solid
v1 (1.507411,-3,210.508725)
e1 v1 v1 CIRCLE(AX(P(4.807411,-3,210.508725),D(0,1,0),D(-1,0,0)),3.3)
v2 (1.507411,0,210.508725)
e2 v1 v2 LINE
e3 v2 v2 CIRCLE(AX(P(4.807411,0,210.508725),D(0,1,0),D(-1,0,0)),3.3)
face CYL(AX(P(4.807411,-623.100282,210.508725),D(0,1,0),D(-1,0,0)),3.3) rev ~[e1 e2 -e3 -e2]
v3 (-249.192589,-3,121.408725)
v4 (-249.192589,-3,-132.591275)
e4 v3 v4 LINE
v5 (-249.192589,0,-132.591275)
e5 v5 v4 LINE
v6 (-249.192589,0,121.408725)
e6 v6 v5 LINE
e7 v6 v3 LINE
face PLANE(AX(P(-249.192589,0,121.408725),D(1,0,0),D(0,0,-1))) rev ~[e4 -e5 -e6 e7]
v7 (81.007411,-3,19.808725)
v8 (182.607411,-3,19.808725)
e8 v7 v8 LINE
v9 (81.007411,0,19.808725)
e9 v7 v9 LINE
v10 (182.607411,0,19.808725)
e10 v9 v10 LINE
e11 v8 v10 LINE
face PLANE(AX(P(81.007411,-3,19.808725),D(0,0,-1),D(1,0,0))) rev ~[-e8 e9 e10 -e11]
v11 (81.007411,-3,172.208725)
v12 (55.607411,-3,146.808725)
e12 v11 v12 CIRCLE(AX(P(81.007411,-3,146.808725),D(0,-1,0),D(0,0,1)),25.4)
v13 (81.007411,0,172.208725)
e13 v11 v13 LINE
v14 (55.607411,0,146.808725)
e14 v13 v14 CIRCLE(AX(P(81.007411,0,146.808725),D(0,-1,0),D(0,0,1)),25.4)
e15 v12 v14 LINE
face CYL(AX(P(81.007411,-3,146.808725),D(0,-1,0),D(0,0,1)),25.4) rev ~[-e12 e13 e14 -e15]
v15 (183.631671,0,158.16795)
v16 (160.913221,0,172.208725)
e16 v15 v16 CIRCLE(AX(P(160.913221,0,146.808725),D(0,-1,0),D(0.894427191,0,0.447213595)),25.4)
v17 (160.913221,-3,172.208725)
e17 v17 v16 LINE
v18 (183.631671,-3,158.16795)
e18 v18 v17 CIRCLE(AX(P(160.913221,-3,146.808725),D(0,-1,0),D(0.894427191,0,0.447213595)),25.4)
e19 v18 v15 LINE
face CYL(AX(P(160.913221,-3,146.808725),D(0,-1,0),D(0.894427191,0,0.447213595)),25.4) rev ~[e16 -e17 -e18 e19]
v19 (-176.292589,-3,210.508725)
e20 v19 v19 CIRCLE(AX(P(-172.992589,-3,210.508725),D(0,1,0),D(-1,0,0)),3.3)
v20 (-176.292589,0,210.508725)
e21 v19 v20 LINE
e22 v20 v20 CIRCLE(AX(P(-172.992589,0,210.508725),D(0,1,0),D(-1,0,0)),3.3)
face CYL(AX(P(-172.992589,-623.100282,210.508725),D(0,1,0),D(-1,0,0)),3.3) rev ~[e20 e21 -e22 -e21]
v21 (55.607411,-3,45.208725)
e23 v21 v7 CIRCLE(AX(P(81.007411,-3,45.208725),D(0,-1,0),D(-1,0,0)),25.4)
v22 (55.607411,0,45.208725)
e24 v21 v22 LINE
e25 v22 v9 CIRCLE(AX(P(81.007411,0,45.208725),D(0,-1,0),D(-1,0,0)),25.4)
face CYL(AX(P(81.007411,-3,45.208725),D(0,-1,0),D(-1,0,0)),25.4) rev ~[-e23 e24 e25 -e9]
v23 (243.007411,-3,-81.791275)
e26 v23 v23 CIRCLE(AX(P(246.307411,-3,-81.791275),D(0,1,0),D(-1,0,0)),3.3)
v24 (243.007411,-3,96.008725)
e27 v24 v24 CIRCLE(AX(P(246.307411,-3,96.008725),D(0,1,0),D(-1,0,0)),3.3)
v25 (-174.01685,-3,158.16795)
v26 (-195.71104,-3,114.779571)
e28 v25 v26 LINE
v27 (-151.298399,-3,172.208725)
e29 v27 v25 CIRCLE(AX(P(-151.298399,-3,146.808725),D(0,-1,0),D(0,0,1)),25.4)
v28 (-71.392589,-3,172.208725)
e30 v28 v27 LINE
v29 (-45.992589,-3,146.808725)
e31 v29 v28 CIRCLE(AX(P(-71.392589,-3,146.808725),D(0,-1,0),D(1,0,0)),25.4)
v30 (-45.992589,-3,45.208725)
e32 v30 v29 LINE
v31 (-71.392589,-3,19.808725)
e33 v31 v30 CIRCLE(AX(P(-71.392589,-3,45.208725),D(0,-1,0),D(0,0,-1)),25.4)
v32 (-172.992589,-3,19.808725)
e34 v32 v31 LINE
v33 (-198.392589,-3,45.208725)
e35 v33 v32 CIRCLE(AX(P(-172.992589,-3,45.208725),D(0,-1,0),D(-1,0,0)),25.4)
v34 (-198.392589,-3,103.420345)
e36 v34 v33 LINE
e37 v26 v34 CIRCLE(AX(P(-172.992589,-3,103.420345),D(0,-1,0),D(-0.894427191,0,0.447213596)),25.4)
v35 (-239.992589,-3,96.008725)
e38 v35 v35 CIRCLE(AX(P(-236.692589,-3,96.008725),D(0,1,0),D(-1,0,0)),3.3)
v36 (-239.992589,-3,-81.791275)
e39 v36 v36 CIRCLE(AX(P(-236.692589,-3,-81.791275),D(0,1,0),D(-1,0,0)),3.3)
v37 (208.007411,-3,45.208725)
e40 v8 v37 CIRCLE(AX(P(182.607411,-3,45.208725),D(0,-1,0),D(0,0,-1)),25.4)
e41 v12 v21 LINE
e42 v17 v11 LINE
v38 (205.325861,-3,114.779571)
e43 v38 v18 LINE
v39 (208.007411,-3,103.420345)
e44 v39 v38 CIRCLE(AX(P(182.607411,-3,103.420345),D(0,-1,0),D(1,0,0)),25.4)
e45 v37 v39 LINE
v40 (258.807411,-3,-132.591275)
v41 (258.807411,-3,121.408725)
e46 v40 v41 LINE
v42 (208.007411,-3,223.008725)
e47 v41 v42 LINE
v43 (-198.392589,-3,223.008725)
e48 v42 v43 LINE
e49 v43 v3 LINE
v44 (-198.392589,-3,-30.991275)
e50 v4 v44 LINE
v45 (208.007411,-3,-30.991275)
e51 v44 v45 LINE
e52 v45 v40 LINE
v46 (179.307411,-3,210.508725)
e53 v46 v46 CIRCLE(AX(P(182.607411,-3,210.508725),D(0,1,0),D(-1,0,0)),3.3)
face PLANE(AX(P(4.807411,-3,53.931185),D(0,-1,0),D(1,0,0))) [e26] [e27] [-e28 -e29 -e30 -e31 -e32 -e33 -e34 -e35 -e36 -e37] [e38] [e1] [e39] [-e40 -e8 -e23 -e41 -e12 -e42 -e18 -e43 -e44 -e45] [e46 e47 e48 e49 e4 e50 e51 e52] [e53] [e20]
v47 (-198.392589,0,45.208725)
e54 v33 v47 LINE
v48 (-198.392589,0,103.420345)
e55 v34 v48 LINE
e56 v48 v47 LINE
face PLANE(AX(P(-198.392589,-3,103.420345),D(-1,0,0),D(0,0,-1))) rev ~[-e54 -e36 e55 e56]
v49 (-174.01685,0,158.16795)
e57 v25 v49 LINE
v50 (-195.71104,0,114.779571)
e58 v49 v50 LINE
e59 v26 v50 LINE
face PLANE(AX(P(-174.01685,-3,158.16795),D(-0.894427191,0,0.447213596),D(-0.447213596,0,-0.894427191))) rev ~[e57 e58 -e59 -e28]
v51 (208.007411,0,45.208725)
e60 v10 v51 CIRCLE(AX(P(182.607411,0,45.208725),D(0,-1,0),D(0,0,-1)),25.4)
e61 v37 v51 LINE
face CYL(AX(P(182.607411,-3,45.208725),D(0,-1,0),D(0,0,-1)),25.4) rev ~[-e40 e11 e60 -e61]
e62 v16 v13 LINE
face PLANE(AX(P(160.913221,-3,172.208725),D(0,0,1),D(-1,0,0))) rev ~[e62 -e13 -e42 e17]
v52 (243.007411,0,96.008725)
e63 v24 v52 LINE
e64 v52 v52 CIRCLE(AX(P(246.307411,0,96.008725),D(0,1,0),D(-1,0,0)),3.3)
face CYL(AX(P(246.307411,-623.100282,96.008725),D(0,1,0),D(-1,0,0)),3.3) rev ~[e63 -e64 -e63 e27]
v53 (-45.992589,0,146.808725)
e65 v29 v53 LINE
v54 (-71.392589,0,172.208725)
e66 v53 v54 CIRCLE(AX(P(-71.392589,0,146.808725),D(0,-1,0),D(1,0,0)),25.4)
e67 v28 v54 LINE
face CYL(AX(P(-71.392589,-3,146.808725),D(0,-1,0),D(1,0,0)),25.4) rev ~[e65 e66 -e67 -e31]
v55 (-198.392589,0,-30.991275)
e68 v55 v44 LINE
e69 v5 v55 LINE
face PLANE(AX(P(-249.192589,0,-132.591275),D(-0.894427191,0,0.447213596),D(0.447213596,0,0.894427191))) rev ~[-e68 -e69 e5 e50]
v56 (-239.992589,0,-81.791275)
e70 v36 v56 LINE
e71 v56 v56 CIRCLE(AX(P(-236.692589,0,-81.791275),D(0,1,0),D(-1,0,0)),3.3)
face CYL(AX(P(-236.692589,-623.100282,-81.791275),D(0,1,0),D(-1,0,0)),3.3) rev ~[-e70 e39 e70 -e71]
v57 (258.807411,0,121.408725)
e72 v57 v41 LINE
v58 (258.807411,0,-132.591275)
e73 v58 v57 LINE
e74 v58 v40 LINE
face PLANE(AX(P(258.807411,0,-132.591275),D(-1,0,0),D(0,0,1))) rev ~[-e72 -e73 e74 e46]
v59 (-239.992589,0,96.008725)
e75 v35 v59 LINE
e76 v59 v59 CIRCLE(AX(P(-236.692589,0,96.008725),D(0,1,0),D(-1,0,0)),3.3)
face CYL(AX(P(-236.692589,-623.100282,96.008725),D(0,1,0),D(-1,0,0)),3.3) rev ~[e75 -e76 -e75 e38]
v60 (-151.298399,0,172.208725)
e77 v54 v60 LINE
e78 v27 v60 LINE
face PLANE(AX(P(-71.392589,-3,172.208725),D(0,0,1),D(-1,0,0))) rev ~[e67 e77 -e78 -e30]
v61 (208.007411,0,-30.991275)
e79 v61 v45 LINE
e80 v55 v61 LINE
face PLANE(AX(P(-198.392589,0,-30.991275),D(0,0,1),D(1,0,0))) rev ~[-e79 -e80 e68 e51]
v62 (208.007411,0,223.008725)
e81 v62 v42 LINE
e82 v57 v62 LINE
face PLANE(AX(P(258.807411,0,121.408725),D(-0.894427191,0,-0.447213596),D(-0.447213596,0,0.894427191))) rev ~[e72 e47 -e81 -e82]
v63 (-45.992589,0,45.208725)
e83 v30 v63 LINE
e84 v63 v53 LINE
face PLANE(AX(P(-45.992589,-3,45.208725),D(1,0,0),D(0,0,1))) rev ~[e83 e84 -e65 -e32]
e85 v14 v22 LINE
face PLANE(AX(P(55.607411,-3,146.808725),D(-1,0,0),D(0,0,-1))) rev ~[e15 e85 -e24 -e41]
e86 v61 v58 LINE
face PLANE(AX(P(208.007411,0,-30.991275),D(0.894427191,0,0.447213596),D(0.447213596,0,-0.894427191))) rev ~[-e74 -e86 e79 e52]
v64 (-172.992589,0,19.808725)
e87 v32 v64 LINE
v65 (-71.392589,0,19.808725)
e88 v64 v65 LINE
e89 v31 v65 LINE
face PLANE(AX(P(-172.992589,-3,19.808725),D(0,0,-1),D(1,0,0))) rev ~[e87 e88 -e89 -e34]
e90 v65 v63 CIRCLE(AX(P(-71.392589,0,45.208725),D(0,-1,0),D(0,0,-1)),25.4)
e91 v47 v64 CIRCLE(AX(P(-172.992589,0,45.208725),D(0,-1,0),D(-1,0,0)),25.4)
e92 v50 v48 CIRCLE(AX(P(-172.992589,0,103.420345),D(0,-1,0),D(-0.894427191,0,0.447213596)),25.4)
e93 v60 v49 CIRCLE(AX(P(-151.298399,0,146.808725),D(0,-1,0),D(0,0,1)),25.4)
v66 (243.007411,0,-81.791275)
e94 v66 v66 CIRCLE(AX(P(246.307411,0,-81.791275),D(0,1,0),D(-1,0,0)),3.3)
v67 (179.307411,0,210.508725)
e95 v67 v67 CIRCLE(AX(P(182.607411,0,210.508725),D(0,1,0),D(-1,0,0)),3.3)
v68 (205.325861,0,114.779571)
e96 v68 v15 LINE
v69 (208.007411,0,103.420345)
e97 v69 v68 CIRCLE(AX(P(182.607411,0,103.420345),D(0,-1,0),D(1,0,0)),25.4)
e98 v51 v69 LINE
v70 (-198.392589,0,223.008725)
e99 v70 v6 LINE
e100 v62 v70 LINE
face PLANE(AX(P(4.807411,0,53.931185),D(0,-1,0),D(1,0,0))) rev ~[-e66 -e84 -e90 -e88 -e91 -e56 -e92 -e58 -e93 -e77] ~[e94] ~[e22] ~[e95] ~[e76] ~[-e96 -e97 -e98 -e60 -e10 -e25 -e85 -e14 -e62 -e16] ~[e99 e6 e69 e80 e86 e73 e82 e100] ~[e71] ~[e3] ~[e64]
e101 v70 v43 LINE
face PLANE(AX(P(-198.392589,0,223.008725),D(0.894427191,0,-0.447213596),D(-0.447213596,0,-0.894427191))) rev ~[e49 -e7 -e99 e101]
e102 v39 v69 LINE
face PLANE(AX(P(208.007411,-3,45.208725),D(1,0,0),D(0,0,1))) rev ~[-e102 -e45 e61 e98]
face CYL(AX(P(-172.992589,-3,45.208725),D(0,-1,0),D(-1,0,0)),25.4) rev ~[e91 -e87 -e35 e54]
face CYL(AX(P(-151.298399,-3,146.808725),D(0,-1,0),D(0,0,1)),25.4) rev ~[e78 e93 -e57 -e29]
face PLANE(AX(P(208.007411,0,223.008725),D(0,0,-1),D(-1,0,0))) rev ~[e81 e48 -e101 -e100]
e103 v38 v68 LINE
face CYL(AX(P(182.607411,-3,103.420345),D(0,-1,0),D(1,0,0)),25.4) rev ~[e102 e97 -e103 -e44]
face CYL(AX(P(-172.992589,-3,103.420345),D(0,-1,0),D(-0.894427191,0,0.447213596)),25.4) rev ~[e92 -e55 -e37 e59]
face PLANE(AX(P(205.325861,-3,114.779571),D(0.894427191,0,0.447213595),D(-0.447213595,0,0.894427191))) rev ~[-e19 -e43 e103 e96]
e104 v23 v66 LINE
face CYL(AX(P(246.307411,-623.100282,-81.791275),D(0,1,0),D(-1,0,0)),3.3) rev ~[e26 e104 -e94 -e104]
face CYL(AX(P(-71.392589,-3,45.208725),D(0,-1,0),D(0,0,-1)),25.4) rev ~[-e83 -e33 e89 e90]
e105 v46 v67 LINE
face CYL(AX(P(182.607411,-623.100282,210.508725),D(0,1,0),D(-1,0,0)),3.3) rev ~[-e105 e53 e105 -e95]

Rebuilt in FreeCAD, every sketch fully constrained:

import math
import FreeCAD as App
import Part
import Sketcher

V = App.Vector
Q = App.Units.Quantity


def add_polygon(sketch, points):
    """Adds a closed chain of lines whose ends are joined by coincident constraints."""
    first, n = sketch.GeometryCount, len(points)
    for a, b in zip(points, points[1:] + points[:1]):
        sketch.addGeometry(Part.LineSegment(App.Vector(*a, 0), App.Vector(*b, 0)), False)
    for i in range(n):
        sketch.addConstraint(Sketcher.Constraint("Coincident", first + i, 2, first + (i + 1) % n, 1))

doc = App.newDocument("Part")
params = doc.addObject("Spreadsheet::Sheet", "Params")
for row, (alias, value) in enumerate([
    ("sketch1_width", "16 in"),
    ("sketch1_height", "10 in"),
    ("pad1_length", "3 mm"),
    ("sketch2_radius", "1 in"),
    ("sketch2_width", "4 in"),
    ("hole_diameter", "6.6 mm"),
], start=1):
    params.set(f"A{row}", alias)
    params.set(f"B{row}", "=" + value)
    params.setAlias(f"B{row}", alias)

body = doc.addObject("PartDesign::Body", "Body")

# Sketch on XZ plane
sketch1 = doc.addObject("Sketcher::SketchObject", "Sketch")
body.addObject(sketch1)
sketch1.AttachmentSupport = (doc.XZ_Plane, [""])
sketch1.MapMode = "FlatFace"
add_polygon(sketch1, [(-249, 121), (-249, -133), (-198, -31), (208, -31), (259, -133), (259, 121), (208, 223), (-198, 223)])  # lines 0-7
sketch1.addConstraint([
    Sketcher.Constraint("Vertical", 0),
    Sketcher.Constraint("Horizontal", 2),
    Sketcher.Constraint("Vertical", 4),
    Sketcher.Constraint("Horizontal", 6),
    Sketcher.Constraint("Parallel", 3, 5),
    Sketcher.Constraint("Parallel", 1, 7),
    Sketcher.Constraint("Horizontal", 0, 2, 3, 2),
    Sketcher.Constraint("Horizontal", 4, 2, 7, 2),
    Sketcher.Constraint("Vertical", 2, 2, 5, 2),
    Sketcher.Constraint("Equal", 1, 3),
    Sketcher.Constraint("DistanceX", 2, 1, 2, 2, Q("16 in")),
    Sketcher.Constraint("DistanceY", 0, 2, 0, 1, Q("10 in")),
    Sketcher.Constraint("DistanceX", 0, 2, 1, 2, Q("2 in")),
    Sketcher.Constraint("DistanceY", 0, 2, 1, 2, Q("4 in")),
    Sketcher.Constraint("DistanceX", 0, 2, -1, 1, Q("249.192589 mm")),
    Sketcher.Constraint("DistanceY", 0, 2, -1, 1, Q("132.591275 mm")),
])
sketch1.setExpression("Constraints[18]", "Params.sketch1_width")
sketch1.setExpression("Constraints[19]", "Params.sketch1_height")
pad1 = doc.addObject("PartDesign::Pad", "Pad")
body.addObject(pad1)
pad1.Profile = sketch1
pad1.setExpression("Length", "Params.pad1_length")

# Sketch on XZ plane
sketch2 = doc.addObject("Sketcher::SketchObject", "Sketch001")
body.addObject(sketch2)
sketch2.AttachmentSupport = (doc.XZ_Plane, [""])
sketch2.MapMode = "FlatFace"
sketch2.AttachmentOffset = App.Placement(V(0, 0, 3), App.Rotation())
sketch2.addGeometry([
    Part.ArcOfCircle(Part.Circle(V(-173, 45, 0), V(0, 0, 1), 25), math.radians(180), math.radians(270)),  # 0
    Part.LineSegment(V(-173, 20, 0), V(-71, 20, 0)),  # 1
    Part.ArcOfCircle(Part.Circle(V(-71, 45, 0), V(0, 0, 1), 25), math.radians(-90), math.radians(0)),  # 2
    Part.LineSegment(V(-46, 45, 0), V(-46, 147, 0)),  # 3
    Part.ArcOfCircle(Part.Circle(V(-71, 147, 0), V(0, 0, 1), 25), math.radians(0), math.radians(90)),  # 4
    Part.LineSegment(V(-71, 172, 0), V(-151, 172, 0)),  # 5
    Part.ArcOfCircle(Part.Circle(V(-151, 147, 0), V(0, 0, 1), 25), math.radians(90), math.radians(153)),  # 6
    Part.LineSegment(V(-174, 158, 0), V(-196, 115, 0)),  # 7
    Part.ArcOfCircle(Part.Circle(V(-173, 103, 0), V(0, 0, 1), 25), math.radians(153), math.radians(180)),  # 8
    Part.LineSegment(V(-198, 103, 0), V(-198, 45, 0)),  # 9
    Part.ArcOfCircle(Part.Circle(V(183, 103, 0), V(0, 0, 1), 25), math.radians(0), math.radians(27)),  # 10
    Part.LineSegment(V(205, 115, 0), V(184, 158, 0)),  # 11
    Part.ArcOfCircle(Part.Circle(V(161, 147, 0), V(0, 0, 1), 25), math.radians(27), math.radians(90)),  # 12
    Part.LineSegment(V(161, 172, 0), V(81, 172, 0)),  # 13
    Part.ArcOfCircle(Part.Circle(V(81, 147, 0), V(0, 0, 1), 25), math.radians(90), math.radians(180)),  # 14
    Part.LineSegment(V(56, 147, 0), V(56, 45, 0)),  # 15
    Part.ArcOfCircle(Part.Circle(V(81, 45, 0), V(0, 0, 1), 25), math.radians(180), math.radians(270)),  # 16
    Part.LineSegment(V(81, 20, 0), V(183, 20, 0)),  # 17
    Part.ArcOfCircle(Part.Circle(V(183, 45, 0), V(0, 0, 1), 25), math.radians(-90), math.radians(0)),  # 18
    Part.LineSegment(V(208, 45, 0), V(208, 103, 0)),  # 19
], False)
sketch2.addConstraint([
    Sketcher.Constraint("Tangent", 0, 2, 1, 1),
    Sketcher.Constraint("Tangent", 1, 2, 2, 1),
    Sketcher.Constraint("Tangent", 2, 2, 3, 1),
    Sketcher.Constraint("Tangent", 3, 2, 4, 1),
    Sketcher.Constraint("Tangent", 4, 2, 5, 1),
    Sketcher.Constraint("Tangent", 5, 2, 6, 1),
    Sketcher.Constraint("Tangent", 6, 2, 7, 1),
    Sketcher.Constraint("Tangent", 7, 2, 8, 1),
    Sketcher.Constraint("Tangent", 8, 2, 9, 1),
    Sketcher.Constraint("Tangent", 9, 2, 0, 1),
    Sketcher.Constraint("Tangent", 10, 2, 11, 1),
    Sketcher.Constraint("Tangent", 11, 2, 12, 1),
    Sketcher.Constraint("Tangent", 12, 2, 13, 1),
    Sketcher.Constraint("Tangent", 13, 2, 14, 1),
    Sketcher.Constraint("Tangent", 14, 2, 15, 1),
    Sketcher.Constraint("Tangent", 15, 2, 16, 1),
    Sketcher.Constraint("Tangent", 16, 2, 17, 1),
    Sketcher.Constraint("Tangent", 17, 2, 18, 1),
    Sketcher.Constraint("Tangent", 18, 2, 19, 1),
    Sketcher.Constraint("Tangent", 19, 2, 10, 1),
    Sketcher.Constraint("Horizontal", 1),
    Sketcher.Constraint("Vertical", 3),
    Sketcher.Constraint("Horizontal", 5),
    Sketcher.Constraint("Vertical", 9),
    Sketcher.Constraint("Horizontal", 13),
    Sketcher.Constraint("Vertical", 15),
    Sketcher.Constraint("Horizontal", 17),
    Sketcher.Constraint("Vertical", 19),
    Sketcher.Constraint("Equal", 0, 2),
    Sketcher.Constraint("Equal", 2, 4),
    Sketcher.Constraint("Equal", 4, 6),
    Sketcher.Constraint("Equal", 6, 8),
    Sketcher.Constraint("Equal", 8, 10),
    Sketcher.Constraint("Equal", 10, 12),
    Sketcher.Constraint("Equal", 12, 14),
    Sketcher.Constraint("Equal", 14, 16),
    Sketcher.Constraint("Equal", 16, 18),
    Sketcher.Constraint("Horizontal", 8, 3, 10, 3),
    Sketcher.Constraint("Horizontal", 6, 3, 12, 3),
    Sketcher.Constraint("Horizontal", 2, 3, 16, 3),
    Sketcher.Constraint("Horizontal", 7, 2, 10, 2),
    Sketcher.Constraint("Equal", 5, 13),
    Sketcher.Constraint("Equal", 17, 3),
    Sketcher.Constraint("Radius", 0, Q("1 in")),
    Sketcher.Constraint("DistanceX", 1, 1, 1, 2, Q("4 in")),
    Sketcher.Constraint("DistanceX", 4, 3, 10, 3, Q("10 in")),
    Sketcher.Constraint("DistanceX", 5, 2, 5, 1, Q("79.90581 mm")),
    Sketcher.Constraint("DistanceY", 9, 2, 9, 1, Q("58.21162 mm")),
    Sketcher.Constraint("DistanceX", 6, 3, -1, 1, Q("151.298399 mm")),
    Sketcher.Constraint("DistanceY", -1, 1, 6, 2, Q("158.16795 mm")),
])
sketch2.setExpression("Constraints[43]", "Params.sketch2_radius")
sketch2.setExpression("Constraints[44]", "Params.sketch2_width")
pocket1 = doc.addObject("PartDesign::Pocket", "Pocket")
body.addObject(pocket1)
pocket1.Profile = sketch2
pocket1.Type = "ThroughAll"

# Sketch on XZ plane
sketch3 = doc.addObject("Sketcher::SketchObject", "Sketch002")
body.addObject(sketch3)
sketch3.AttachmentSupport = (doc.XZ_Plane, [""])
sketch3.MapMode = "FlatFace"
sketch3.AttachmentOffset = App.Placement(V(0, 0, 3), App.Rotation())
sketch3.addGeometry([
    Part.Circle(V(-173, 210.5, 0), V(0, 0, 1), 3.3),  # 0
    Part.Circle(V(4.8, 210.5, 0), V(0, 0, 1), 3.3),  # 1
    Part.Circle(V(182.6, 210.5, 0), V(0, 0, 1), 3.3),  # 2
    Part.Circle(V(246.3, 96, 0), V(0, 0, 1), 3.3),  # 3
    Part.Circle(V(246.3, -81.8, 0), V(0, 0, 1), 3.3),  # 4
    Part.Circle(V(-236.7, -81.8, 0), V(0, 0, 1), 3.3),  # 5
    Part.Circle(V(-236.7, 96, 0), V(0, 0, 1), 3.3),  # 6
], False)
sketch3.addConstraint([
    Sketcher.Constraint("Equal", 0, 1),
    Sketcher.Constraint("Equal", 1, 2),
    Sketcher.Constraint("Equal", 2, 3),
    Sketcher.Constraint("Equal", 3, 4),
    Sketcher.Constraint("Equal", 4, 5),
    Sketcher.Constraint("Equal", 5, 6),
    Sketcher.Constraint("Horizontal", 0, 3, 1, 3),
    Sketcher.Constraint("Horizontal", 1, 3, 2, 3),
    Sketcher.Constraint("Horizontal", 4, 3, 5, 3),
    Sketcher.Constraint("Horizontal", 3, 3, 6, 3),
    Sketcher.Constraint("Vertical", 3, 3, 4, 3),
    Sketcher.Constraint("Vertical", 5, 3, 6, 3),
    Sketcher.Constraint("DistanceX", 0, 3, 1, 3, Q("7 in")),
    Sketcher.Constraint("DistanceX", 1, 3, 2, 3, Q("7 in")),
    Sketcher.Constraint("DistanceY", 4, 3, 3, 3, Q("7 in")),
    Sketcher.Constraint("Diameter", 0, Q("6.6 mm")),
    Sketcher.Constraint("DistanceX", 2, 3, 3, 3, Q("63.7 mm")),
    Sketcher.Constraint("DistanceY", 3, 3, 2, 3, Q("114.5 mm")),
    Sketcher.Constraint("DistanceX", 5, 3, 0, 3, Q("63.7 mm")),
    Sketcher.Constraint("DistanceX", 0, 3, -1, 1, Q("172.992589 mm")),
    Sketcher.Constraint("DistanceY", -1, 1, 0, 3, Q("210.508725 mm")),
])
doc.recompute()
hole = doc.addObject("PartDesign::Hole", "Hole")
body.addObject(hole)
hole.Profile = sketch3
hole.ThreadType = "None"
hole.setExpression("Diameter", "Params.hole_diameter")
hole.DepthType = "ThroughAll"

doc.recompute()
